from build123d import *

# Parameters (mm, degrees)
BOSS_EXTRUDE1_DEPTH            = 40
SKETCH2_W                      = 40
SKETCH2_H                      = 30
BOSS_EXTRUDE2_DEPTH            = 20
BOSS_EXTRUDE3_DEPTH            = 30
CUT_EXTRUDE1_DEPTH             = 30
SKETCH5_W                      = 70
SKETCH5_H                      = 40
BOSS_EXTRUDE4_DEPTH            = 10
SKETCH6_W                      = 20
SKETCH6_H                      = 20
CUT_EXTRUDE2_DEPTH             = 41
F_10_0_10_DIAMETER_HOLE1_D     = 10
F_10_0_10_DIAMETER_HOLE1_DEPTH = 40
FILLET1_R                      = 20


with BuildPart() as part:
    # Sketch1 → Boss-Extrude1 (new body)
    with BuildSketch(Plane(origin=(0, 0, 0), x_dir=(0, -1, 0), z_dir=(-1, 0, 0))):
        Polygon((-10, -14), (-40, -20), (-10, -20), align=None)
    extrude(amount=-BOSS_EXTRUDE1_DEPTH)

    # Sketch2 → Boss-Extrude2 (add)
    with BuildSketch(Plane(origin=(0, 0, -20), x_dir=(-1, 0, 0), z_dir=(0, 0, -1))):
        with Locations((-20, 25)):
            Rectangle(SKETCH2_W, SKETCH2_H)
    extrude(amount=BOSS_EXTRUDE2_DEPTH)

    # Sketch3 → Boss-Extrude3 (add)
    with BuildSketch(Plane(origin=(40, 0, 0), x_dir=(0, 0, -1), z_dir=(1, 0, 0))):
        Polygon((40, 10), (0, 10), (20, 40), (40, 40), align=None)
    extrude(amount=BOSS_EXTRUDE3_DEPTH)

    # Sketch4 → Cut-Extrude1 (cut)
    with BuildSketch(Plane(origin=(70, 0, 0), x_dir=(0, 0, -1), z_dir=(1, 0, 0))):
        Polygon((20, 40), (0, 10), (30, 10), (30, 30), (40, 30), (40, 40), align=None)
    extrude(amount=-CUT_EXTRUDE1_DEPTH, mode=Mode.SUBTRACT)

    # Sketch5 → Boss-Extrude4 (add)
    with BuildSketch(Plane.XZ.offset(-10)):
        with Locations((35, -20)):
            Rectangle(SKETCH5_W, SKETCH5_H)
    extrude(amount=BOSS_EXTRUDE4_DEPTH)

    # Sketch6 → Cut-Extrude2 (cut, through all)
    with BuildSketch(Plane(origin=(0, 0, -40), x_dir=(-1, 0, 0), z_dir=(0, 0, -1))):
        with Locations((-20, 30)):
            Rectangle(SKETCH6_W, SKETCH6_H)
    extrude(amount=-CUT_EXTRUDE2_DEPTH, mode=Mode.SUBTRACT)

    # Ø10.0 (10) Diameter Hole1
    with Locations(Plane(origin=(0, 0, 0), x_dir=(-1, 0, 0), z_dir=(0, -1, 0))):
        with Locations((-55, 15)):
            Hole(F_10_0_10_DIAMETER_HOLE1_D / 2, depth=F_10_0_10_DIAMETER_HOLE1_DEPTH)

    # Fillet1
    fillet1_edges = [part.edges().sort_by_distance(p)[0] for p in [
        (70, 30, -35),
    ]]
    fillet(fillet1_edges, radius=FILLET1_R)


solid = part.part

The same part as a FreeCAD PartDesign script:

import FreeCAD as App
import Part
import Sketcher
from FreeCAD import Vector
Q = App.Units.Quantity


def edges_at(feature, points):
    """Names of the edges that pass closest to the given points."""
    edges = feature.Shape.Edges
    near = lambda p: min(range(len(edges)), key=lambda i: edges[i].distToShape(Part.Vertex(*p))[0])
    return sorted({f"Edge{near(p) + 1}" for p in points})

doc = App.newDocument("Part")
params = doc.addObject("Spreadsheet::Sheet", "Params")
for row, (alias, value) in enumerate([
    ("sketch1_width", "30 mm"),
    ("sketch1_height", "6 mm"),
    ("pad1_length", "40 mm"),
    ("sketch2_width", "40 mm"),
    ("sketch2_height", "30 mm"),
    ("pad2_length", "20 mm"),
    ("sketch3_width", "30 mm"),
    ("sketch3_height", "40 mm"),
    ("sketch3_height2", "20 mm"),
    ("pad3_length", "30 mm"),
    ("sketch4_width", "20 mm"),
    ("sketch4_width2", "10 mm"),
    ("sketch4_height", "30 mm"),
    ("pocket1_length", "30 mm"),
    ("sketch5_width", "70 mm"),
    ("sketch5_height", "40 mm"),
    ("pad4_length", "10 mm"),
    ("sketch6_width", "20 mm"),
    ("sketch7_diameter", "10 mm"),
    ("hole_diameter", "10 mm"),
    ("hole_depth", "40 mm"),
    ("fillet_radius", "20 mm"),
], start=1):
    params.set(f"A{row}", alias)
    params.set(f"B{row}", "=" + value)
    params.setAlias(f"B{row}", alias)

body = doc.addObject("PartDesign::Body", "Body")

# Sketch on YZ plane
sketch1 = doc.addObject("Sketcher::SketchObject", "Sketch")
body.addObject(sketch1)
sketch1.AttachmentSupport = (doc.YZ_Plane, [""])
sketch1.MapMode = "FlatFace"
sketch1.addGeometry([
    Part.LineSegment(Vector(10, -14, 0), Vector(40, -20, 0)),
    Part.LineSegment(Vector(40, -20, 0), Vector(10, -20, 0)),
    Part.LineSegment(Vector(10, -20, 0), Vector(10, -14, 0)),
], False)
sketch1.addConstraint([
    Sketcher.Constraint("Coincident", 0, 2, 1, 1),
    Sketcher.Constraint("Coincident", 1, 2, 2, 1),
    Sketcher.Constraint("Coincident", 2, 2, 0, 1),
    Sketcher.Constraint("Horizontal", 1),
    Sketcher.Constraint("Vertical", 2),
    Sketcher.Constraint("DistanceX", 1, 2, 1, 1, Q("30 mm")),
    Sketcher.Constraint("DistanceY", 2, 1, 2, 2, Q("6 mm")),
    Sketcher.Constraint("DistanceX", -1, 1, 0, 2, Q("40 mm")),
    Sketcher.Constraint("DistanceY", 0, 2, -1, 1, Q("20 mm")),
])
sketch1.setExpression("Constraints[5]", "Params.sketch1_width")
sketch1.setExpression("Constraints[6]", "Params.sketch1_height")
pad1 = doc.addObject("PartDesign::Pad", "Pad")
body.addObject(pad1)
pad1.Profile = sketch1
pad1.setExpression("Length", "Params.pad1_length")

# Sketch on XY plane
sketch2 = doc.addObject("Sketcher::SketchObject", "Sketch001")
body.addObject(sketch2)
sketch2.AttachmentSupport = (doc.XY_Plane, [""])
sketch2.MapMode = "FlatFace"
sketch2.AttachmentOffset = App.Placement(Vector(0, 0, -20), App.Rotation())
sketch2.addGeometry([
    Part.LineSegment(Vector(40, 40, 0), Vector(40, 10, 0)),
    Part.LineSegment(Vector(40, 10, 0), Vector(0, 10, 0)),
    Part.LineSegment(Vector(0, 10, 0), Vector(0, 40, 0)),
    Part.LineSegment(Vector(0, 40, 0), Vector(40, 40, 0)),
], False)
sketch2.addConstraint([
    Sketcher.Constraint("Coincident", 0, 2, 1, 1),
    Sketcher.Constraint("Coincident", 1, 2, 2, 1),
    Sketcher.Constraint("Coincident", 2, 2, 3, 1),
    Sketcher.Constraint("Coincident", 3, 2, 0, 1),
    Sketcher.Constraint("Vertical", 0),
    Sketcher.Constraint("Horizontal", 1),
    Sketcher.Constraint("Vertical", 2),
    Sketcher.Constraint("Horizontal", 3),
    Sketcher.Constraint("PointOnObject", 1, 2, -2),
    Sketcher.Constraint("DistanceX", 1, 2, 1, 1, Q("40 mm")),
    Sketcher.Constraint("DistanceY", 0, 2, 0, 1, Q("30 mm")),
    Sketcher.Constraint("DistanceY", -1, 1, 0, 2, Q("10 mm")),
])
sketch2.setExpression("Constraints[9]", "Params.sketch2_width")
sketch2.setExpression("Constraints[10]", "Params.sketch2_height")
pad2 = doc.addObject("PartDesign::Pad", "Pad001")
body.addObject(pad2)
pad2.Profile = sketch2
pad2.setExpression("Length", "Params.pad2_length")
pad2.Reversed = True

# Sketch on YZ plane
sketch3 = doc.addObject("Sketcher::SketchObject", "Sketch002")
body.addObject(sketch3)
sketch3.AttachmentSupport = (doc.YZ_Plane, [""])
sketch3.MapMode = "FlatFace"
sketch3.AttachmentOffset = App.Placement(Vector(0, 0, 40), App.Rotation())
sketch3.addGeometry([
    Part.LineSegment(Vector(10, 0, 0), Vector(10, -40, 0)),
    Part.LineSegment(Vector(10, -40, 0), Vector(40, -40, 0)),
    Part.LineSegment(Vector(40, -40, 0), Vector(40, -20, 0)),
    Part.LineSegment(Vector(40, -20, 0), Vector(10, 0, 0)),
], False)
sketch3.addConstraint([
    Sketcher.Constraint("Coincident", 0, 2, 1, 1),
    Sketcher.Constraint("Coincident", 1, 2, 2, 1),
    Sketcher.Constraint("Coincident", 2, 2, 3, 1),
    Sketcher.Constraint("Coincident", 3, 2, 0, 1),
    Sketcher.Constraint("Vertical", 0),
    Sketcher.Constraint("Horizontal", 1),
    Sketcher.Constraint("Vertical", 2),
    Sketcher.Constraint("PointOnObject", 3, 2, -1),
    Sketcher.Constraint("DistanceX", 1, 1, 1, 2, Q("30 mm")),
    Sketcher.Constraint("DistanceY", 0, 2, 0, 1, Q("40 mm")),
    Sketcher.Constraint("DistanceY", 2, 1, 2, 2, Q("20 mm")),
    Sketcher.Constraint("DistanceX", -1, 1, 0, 2, Q("10 mm")),
])
sketch3.setExpression("Constraints[8]", "Params.sketch3_width")
sketch3.setExpression("Constraints[9]", "Params.sketch3_height")
sketch3.setExpression("Constraints[10]", "Params.sketch3_height2")
pad3 = doc.addObject("PartDesign::Pad", "Pad002")
body.addObject(pad3)
pad3.Profile = sketch3
pad3.setExpression("Length", "Params.pad3_length")

# Sketch on YZ plane
sketch4 = doc.addObject("Sketcher::SketchObject", "Sketch003")
body.addObject(sketch4)
sketch4.AttachmentSupport = (doc.YZ_Plane, [""])
sketch4.MapMode = "FlatFace"
sketch4.AttachmentOffset = App.Placement(Vector(0, 0, 70), App.Rotation())
sketch4.addGeometry([
    Part.LineSegment(Vector(40, -20, 0), Vector(10, 0, 0)),  # 0
    Part.LineSegment(Vector(10, 0, 0), Vector(10, -30, 0)),  # 1
    Part.LineSegment(Vector(10, -30, 0), Vector(30, -30, 0)),  # 2
    Part.LineSegment(Vector(30, -30, 0), Vector(30, -40, 0)),  # 3
    Part.LineSegment(Vector(30, -40, 0), Vector(40, -40, 0)),  # 4
    Part.LineSegment(Vector(40, -40, 0), Vector(40, -20, 0)),  # 5
], False)
sketch4.addConstraint([
    Sketcher.Constraint("Coincident", 0, 2, 1, 1),
    Sketcher.Constraint("Coincident", 1, 2, 2, 1),
    Sketcher.Constraint("Coincident", 2, 2, 3, 1),
    Sketcher.Constraint("Coincident", 3, 2, 4, 1),
    Sketcher.Constraint("Coincident", 4, 2, 5, 1),
    Sketcher.Constraint("Coincident", 5, 2, 0, 1),
    Sketcher.Constraint("Vertical", 1),
    Sketcher.Constraint("Horizontal", 2),
    Sketcher.Constraint("Vertical", 3),
    Sketcher.Constraint("Horizontal", 4),
    Sketcher.Constraint("Vertical", 5),
    Sketcher.Constraint("PointOnObject", 0, 2, -1),
    Sketcher.Constraint("Equal", 4, 3),
    Sketcher.Constraint("Equal", 2, 5),
    Sketcher.Constraint("DistanceX", 2, 1, 2, 2, Q("20 mm")),
    Sketcher.Constraint("DistanceX", 4, 1, 4, 2, Q("10 mm")),
    Sketcher.Constraint("DistanceY", 1, 2, 1, 1, Q("30 mm")),
    Sketcher.Constraint("DistanceX", -1, 1, 0, 2, Q("10 mm")),
])
sketch4.setExpression("Constraints[14]", "Params.sketch4_width")
sketch4.setExpression("Constraints[15]", "Params.sketch4_width2")
sketch4.setExpression("Constraints[16]", "Params.sketch4_height")
pocket1 = doc.addObject("PartDesign::Pocket", "Pocket")
body.addObject(pocket1)
pocket1.Profile = sketch4
pocket1.setExpression("Length", "Params.pocket1_length")

# Sketch on XZ plane
sketch5 = doc.addObject("Sketcher::SketchObject", "Sketch004")
body.addObject(sketch5)
sketch5.AttachmentSupport = (doc.XZ_Plane, [""])
sketch5.MapMode = "FlatFace"
sketch5.AttachmentOffset = App.Placement(Vector(0, 0, -10), App.Rotation())
sketch5.addGeometry([
    Part.LineSegment(Vector(0, 0, 0), Vector(0, -40, 0)),
    Part.LineSegment(Vector(0, -40, 0), Vector(70, -40, 0)),
    Part.LineSegment(Vector(70, -40, 0), Vector(70, 0, 0)),
    Part.LineSegment(Vector(70, 0, 0), Vector(0, 0, 0)),
], False)
sketch5.addConstraint([
    Sketcher.Constraint("Coincident", 0, 2, 1, 1),
    Sketcher.Constraint("Coincident", 1, 2, 2, 1),
    Sketcher.Constraint("Coincident", 2, 2, 3, 1),
    Sketcher.Constraint("Coincident", 3, 2, 0, 1),
    Sketcher.Constraint("Vertical", 0),
    Sketcher.Constraint("Horizontal", 1),
    Sketcher.Constraint("Vertical", 2),
    Sketcher.Constraint("Horizontal", 3),
    Sketcher.Constraint("Coincident", 3, 2, -1, 1),
    Sketcher.Constraint("DistanceX", 1, 1, 1, 2, Q("70 mm")),
    Sketcher.Constraint("DistanceY", 0, 2, 0, 1, Q("40 mm")),
])
sketch5.setExpression("Constraints[9]", "Params.sketch5_width")
sketch5.setExpression("Constraints[10]", "Params.sketch5_height")
pad4 = doc.addObject("PartDesign::Pad", "Pad003")
body.addObject(pad4)
pad4.Profile = sketch5
pad4.setExpression("Length", "Params.pad4_length")

# Sketch on XY plane
sketch6 = doc.addObject("Sketcher::SketchObject", "Sketch005")
body.addObject(sketch6)
sketch6.AttachmentSupport = (doc.XY_Plane, [""])
sketch6.MapMode = "FlatFace"
sketch6.AttachmentOffset = App.Placement(Vector(0, 0, -40), App.Rotation())
sketch6.addGeometry([
    Part.LineSegment(Vector(30, 40, 0), Vector(30, 20, 0)),
    Part.LineSegment(Vector(30, 20, 0), Vector(10, 20, 0)),
    Part.LineSegment(Vector(10, 20, 0), Vector(10, 40, 0)),
    Part.LineSegment(Vector(10, 40, 0), Vector(30, 40, 0)),
], False)
sketch6.addConstraint([
    Sketcher.Constraint("Coincident", 0, 2, 1, 1),
    Sketcher.Constraint("Coincident", 1, 2, 2, 1),
    Sketcher.Constraint("Coincident", 2, 2, 3, 1),
    Sketcher.Constraint("Coincident", 3, 2, 0, 1),
    Sketcher.Constraint("Vertical", 0),
    Sketcher.Constraint("Horizontal", 1),
    Sketcher.Constraint("Vertical", 2),
    Sketcher.Constraint("Horizontal", 3),
    Sketcher.Constraint("Equal", 3, 0),
    Sketcher.Constraint("DistanceX", 1, 2, 1, 1, Q("20 mm")),
    Sketcher.Constraint("DistanceX", -1, 1, 0, 2, Q("30 mm")),
    Sketcher.Constraint("DistanceY", -1, 1, 0, 2, Q("20 mm")),
])
sketch6.setExpression("Constraints[9]", "Params.sketch6_width")
pocket2 = doc.addObject("PartDesign::Pocket", "Pocket001")
body.addObject(pocket2)
pocket2.Profile = sketch6
pocket2.Type = "ThroughAll"
pocket2.Reversed = True

# Sketch on XZ plane
sketch7 = doc.addObject("Sketcher::SketchObject", "Sketch006")
body.addObject(sketch7)
sketch7.AttachmentSupport = (doc.XZ_Plane, [""])
sketch7.MapMode = "FlatFace"
sketch7.addGeometry(Part.Circle(Vector(55, -15, 0), Vector(0, 0, 1), 5), False)
sketch7.addConstraint([
    Sketcher.Constraint("Diameter", 0, Q("10 mm")),
    Sketcher.Constraint("DistanceX", -1, 1, 0, 3, Q("55 mm")),
    Sketcher.Constraint("DistanceY", 0, 3, -1, 1, Q("15 mm")),
])
sketch7.setExpression("Constraints[0]", "Params.sketch7_diameter")
doc.recompute()
hole = doc.addObject("PartDesign::Hole", "Hole")
body.addObject(hole)
hole.Profile = sketch7
hole.ThreadType = "None"
hole.setExpression("Diameter", "Params.hole_diameter")
hole.DepthType = "Dimension"
hole.setExpression("Depth", "Params.hole_depth")
hole.DrillPoint = "Flat"
doc.recompute()

fillet = doc.addObject("PartDesign::Fillet", "Fillet")
body.addObject(fillet)
fillet.Base = (hole, edges_at(hole, [(70, 30, -35)]))
fillet.setExpression("Radius", "Params.fillet_radius")

doc.recompute()
